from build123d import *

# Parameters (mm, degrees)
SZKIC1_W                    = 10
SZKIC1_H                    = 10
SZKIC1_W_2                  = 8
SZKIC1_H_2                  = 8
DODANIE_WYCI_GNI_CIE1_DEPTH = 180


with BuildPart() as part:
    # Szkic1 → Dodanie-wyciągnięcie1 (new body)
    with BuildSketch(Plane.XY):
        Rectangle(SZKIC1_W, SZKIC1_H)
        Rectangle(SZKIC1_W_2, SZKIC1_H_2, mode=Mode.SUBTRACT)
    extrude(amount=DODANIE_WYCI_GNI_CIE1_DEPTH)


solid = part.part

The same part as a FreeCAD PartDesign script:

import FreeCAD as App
import Part
import Sketcher

V = App.Vector
Q = App.Units.Quantity

doc = App.newDocument("Part")
body = doc.addObject("PartDesign::Body", "Body")

# Sketch on XY plane
sketch1 = body.newObject("Sketcher::SketchObject", "Sketch")
sketch1.AttachmentSupport = (doc.getObject("XY_Plane"), [""])
sketch1.MapMode = "FlatFace"
sketch1.addGeometry([
    Part.LineSegment(V(-5, 5, 0), V(-5, -5, 0)),  # 0
    Part.LineSegment(V(-5, -5, 0), V(5, -5, 0)),  # 1
    Part.LineSegment(V(5, -5, 0), V(5, 5, 0)),  # 2
    Part.LineSegment(V(5, 5, 0), V(-5, 5, 0)),  # 3
    Part.LineSegment(V(4, -4, 0), V(-4, -4, 0)),  # 4
    Part.LineSegment(V(-4, -4, 0), V(-4, 4, 0)),  # 5
    Part.LineSegment(V(-4, 4, 0), V(4, 4, 0)),  # 6
    Part.LineSegment(V(4, 4, 0), V(4, -4, 0)),  # 7
], False)
sketch1.addConstraint([
    Sketcher.Constraint("Coincident", 0, 2, 1, 1),
    Sketcher.Constraint("Coincident", 1, 2, 2, 1),
    Sketcher.Constraint("Coincident", 2, 2, 3, 1),
    Sketcher.Constraint("Coincident", 3, 2, 0, 1),
    Sketcher.Constraint("Coincident", 4, 2, 5, 1),
    Sketcher.Constraint("Coincident", 5, 2, 6, 1),
    Sketcher.Constraint("Coincident", 6, 2, 7, 1),
    Sketcher.Constraint("Coincident", 7, 2, 4, 1),
    Sketcher.Constraint("Vertical", 0),
    Sketcher.Constraint("Horizontal", 1),
    Sketcher.Constraint("Vertical", 2),
    Sketcher.Constraint("Horizontal", 3),
    Sketcher.Constraint("Horizontal", 4),
    Sketcher.Constraint("Vertical", 5),
    Sketcher.Constraint("Horizontal", 6),
    Sketcher.Constraint("Vertical", 7),
    Sketcher.Constraint("Symmetric", 0, 2, 2, 2, -1, 1),
    Sketcher.Constraint("Symmetric", 4, 2, 6, 2, -1, 1),
    Sketcher.Constraint("Equal", 3, 0),
    Sketcher.Constraint("Equal", 6, 5),
    Sketcher.Constraint("DistanceX", 1, 1, 1, 2, Q("10 mm")),
    Sketcher.Constraint("DistanceX", 4, 2, 4, 1, Q("8 mm")),
])
pad1 = body.newObject("PartDesign::Pad", "Pad")
pad1.Profile = sketch1
pad1.Length = 180

doc.recompute()
